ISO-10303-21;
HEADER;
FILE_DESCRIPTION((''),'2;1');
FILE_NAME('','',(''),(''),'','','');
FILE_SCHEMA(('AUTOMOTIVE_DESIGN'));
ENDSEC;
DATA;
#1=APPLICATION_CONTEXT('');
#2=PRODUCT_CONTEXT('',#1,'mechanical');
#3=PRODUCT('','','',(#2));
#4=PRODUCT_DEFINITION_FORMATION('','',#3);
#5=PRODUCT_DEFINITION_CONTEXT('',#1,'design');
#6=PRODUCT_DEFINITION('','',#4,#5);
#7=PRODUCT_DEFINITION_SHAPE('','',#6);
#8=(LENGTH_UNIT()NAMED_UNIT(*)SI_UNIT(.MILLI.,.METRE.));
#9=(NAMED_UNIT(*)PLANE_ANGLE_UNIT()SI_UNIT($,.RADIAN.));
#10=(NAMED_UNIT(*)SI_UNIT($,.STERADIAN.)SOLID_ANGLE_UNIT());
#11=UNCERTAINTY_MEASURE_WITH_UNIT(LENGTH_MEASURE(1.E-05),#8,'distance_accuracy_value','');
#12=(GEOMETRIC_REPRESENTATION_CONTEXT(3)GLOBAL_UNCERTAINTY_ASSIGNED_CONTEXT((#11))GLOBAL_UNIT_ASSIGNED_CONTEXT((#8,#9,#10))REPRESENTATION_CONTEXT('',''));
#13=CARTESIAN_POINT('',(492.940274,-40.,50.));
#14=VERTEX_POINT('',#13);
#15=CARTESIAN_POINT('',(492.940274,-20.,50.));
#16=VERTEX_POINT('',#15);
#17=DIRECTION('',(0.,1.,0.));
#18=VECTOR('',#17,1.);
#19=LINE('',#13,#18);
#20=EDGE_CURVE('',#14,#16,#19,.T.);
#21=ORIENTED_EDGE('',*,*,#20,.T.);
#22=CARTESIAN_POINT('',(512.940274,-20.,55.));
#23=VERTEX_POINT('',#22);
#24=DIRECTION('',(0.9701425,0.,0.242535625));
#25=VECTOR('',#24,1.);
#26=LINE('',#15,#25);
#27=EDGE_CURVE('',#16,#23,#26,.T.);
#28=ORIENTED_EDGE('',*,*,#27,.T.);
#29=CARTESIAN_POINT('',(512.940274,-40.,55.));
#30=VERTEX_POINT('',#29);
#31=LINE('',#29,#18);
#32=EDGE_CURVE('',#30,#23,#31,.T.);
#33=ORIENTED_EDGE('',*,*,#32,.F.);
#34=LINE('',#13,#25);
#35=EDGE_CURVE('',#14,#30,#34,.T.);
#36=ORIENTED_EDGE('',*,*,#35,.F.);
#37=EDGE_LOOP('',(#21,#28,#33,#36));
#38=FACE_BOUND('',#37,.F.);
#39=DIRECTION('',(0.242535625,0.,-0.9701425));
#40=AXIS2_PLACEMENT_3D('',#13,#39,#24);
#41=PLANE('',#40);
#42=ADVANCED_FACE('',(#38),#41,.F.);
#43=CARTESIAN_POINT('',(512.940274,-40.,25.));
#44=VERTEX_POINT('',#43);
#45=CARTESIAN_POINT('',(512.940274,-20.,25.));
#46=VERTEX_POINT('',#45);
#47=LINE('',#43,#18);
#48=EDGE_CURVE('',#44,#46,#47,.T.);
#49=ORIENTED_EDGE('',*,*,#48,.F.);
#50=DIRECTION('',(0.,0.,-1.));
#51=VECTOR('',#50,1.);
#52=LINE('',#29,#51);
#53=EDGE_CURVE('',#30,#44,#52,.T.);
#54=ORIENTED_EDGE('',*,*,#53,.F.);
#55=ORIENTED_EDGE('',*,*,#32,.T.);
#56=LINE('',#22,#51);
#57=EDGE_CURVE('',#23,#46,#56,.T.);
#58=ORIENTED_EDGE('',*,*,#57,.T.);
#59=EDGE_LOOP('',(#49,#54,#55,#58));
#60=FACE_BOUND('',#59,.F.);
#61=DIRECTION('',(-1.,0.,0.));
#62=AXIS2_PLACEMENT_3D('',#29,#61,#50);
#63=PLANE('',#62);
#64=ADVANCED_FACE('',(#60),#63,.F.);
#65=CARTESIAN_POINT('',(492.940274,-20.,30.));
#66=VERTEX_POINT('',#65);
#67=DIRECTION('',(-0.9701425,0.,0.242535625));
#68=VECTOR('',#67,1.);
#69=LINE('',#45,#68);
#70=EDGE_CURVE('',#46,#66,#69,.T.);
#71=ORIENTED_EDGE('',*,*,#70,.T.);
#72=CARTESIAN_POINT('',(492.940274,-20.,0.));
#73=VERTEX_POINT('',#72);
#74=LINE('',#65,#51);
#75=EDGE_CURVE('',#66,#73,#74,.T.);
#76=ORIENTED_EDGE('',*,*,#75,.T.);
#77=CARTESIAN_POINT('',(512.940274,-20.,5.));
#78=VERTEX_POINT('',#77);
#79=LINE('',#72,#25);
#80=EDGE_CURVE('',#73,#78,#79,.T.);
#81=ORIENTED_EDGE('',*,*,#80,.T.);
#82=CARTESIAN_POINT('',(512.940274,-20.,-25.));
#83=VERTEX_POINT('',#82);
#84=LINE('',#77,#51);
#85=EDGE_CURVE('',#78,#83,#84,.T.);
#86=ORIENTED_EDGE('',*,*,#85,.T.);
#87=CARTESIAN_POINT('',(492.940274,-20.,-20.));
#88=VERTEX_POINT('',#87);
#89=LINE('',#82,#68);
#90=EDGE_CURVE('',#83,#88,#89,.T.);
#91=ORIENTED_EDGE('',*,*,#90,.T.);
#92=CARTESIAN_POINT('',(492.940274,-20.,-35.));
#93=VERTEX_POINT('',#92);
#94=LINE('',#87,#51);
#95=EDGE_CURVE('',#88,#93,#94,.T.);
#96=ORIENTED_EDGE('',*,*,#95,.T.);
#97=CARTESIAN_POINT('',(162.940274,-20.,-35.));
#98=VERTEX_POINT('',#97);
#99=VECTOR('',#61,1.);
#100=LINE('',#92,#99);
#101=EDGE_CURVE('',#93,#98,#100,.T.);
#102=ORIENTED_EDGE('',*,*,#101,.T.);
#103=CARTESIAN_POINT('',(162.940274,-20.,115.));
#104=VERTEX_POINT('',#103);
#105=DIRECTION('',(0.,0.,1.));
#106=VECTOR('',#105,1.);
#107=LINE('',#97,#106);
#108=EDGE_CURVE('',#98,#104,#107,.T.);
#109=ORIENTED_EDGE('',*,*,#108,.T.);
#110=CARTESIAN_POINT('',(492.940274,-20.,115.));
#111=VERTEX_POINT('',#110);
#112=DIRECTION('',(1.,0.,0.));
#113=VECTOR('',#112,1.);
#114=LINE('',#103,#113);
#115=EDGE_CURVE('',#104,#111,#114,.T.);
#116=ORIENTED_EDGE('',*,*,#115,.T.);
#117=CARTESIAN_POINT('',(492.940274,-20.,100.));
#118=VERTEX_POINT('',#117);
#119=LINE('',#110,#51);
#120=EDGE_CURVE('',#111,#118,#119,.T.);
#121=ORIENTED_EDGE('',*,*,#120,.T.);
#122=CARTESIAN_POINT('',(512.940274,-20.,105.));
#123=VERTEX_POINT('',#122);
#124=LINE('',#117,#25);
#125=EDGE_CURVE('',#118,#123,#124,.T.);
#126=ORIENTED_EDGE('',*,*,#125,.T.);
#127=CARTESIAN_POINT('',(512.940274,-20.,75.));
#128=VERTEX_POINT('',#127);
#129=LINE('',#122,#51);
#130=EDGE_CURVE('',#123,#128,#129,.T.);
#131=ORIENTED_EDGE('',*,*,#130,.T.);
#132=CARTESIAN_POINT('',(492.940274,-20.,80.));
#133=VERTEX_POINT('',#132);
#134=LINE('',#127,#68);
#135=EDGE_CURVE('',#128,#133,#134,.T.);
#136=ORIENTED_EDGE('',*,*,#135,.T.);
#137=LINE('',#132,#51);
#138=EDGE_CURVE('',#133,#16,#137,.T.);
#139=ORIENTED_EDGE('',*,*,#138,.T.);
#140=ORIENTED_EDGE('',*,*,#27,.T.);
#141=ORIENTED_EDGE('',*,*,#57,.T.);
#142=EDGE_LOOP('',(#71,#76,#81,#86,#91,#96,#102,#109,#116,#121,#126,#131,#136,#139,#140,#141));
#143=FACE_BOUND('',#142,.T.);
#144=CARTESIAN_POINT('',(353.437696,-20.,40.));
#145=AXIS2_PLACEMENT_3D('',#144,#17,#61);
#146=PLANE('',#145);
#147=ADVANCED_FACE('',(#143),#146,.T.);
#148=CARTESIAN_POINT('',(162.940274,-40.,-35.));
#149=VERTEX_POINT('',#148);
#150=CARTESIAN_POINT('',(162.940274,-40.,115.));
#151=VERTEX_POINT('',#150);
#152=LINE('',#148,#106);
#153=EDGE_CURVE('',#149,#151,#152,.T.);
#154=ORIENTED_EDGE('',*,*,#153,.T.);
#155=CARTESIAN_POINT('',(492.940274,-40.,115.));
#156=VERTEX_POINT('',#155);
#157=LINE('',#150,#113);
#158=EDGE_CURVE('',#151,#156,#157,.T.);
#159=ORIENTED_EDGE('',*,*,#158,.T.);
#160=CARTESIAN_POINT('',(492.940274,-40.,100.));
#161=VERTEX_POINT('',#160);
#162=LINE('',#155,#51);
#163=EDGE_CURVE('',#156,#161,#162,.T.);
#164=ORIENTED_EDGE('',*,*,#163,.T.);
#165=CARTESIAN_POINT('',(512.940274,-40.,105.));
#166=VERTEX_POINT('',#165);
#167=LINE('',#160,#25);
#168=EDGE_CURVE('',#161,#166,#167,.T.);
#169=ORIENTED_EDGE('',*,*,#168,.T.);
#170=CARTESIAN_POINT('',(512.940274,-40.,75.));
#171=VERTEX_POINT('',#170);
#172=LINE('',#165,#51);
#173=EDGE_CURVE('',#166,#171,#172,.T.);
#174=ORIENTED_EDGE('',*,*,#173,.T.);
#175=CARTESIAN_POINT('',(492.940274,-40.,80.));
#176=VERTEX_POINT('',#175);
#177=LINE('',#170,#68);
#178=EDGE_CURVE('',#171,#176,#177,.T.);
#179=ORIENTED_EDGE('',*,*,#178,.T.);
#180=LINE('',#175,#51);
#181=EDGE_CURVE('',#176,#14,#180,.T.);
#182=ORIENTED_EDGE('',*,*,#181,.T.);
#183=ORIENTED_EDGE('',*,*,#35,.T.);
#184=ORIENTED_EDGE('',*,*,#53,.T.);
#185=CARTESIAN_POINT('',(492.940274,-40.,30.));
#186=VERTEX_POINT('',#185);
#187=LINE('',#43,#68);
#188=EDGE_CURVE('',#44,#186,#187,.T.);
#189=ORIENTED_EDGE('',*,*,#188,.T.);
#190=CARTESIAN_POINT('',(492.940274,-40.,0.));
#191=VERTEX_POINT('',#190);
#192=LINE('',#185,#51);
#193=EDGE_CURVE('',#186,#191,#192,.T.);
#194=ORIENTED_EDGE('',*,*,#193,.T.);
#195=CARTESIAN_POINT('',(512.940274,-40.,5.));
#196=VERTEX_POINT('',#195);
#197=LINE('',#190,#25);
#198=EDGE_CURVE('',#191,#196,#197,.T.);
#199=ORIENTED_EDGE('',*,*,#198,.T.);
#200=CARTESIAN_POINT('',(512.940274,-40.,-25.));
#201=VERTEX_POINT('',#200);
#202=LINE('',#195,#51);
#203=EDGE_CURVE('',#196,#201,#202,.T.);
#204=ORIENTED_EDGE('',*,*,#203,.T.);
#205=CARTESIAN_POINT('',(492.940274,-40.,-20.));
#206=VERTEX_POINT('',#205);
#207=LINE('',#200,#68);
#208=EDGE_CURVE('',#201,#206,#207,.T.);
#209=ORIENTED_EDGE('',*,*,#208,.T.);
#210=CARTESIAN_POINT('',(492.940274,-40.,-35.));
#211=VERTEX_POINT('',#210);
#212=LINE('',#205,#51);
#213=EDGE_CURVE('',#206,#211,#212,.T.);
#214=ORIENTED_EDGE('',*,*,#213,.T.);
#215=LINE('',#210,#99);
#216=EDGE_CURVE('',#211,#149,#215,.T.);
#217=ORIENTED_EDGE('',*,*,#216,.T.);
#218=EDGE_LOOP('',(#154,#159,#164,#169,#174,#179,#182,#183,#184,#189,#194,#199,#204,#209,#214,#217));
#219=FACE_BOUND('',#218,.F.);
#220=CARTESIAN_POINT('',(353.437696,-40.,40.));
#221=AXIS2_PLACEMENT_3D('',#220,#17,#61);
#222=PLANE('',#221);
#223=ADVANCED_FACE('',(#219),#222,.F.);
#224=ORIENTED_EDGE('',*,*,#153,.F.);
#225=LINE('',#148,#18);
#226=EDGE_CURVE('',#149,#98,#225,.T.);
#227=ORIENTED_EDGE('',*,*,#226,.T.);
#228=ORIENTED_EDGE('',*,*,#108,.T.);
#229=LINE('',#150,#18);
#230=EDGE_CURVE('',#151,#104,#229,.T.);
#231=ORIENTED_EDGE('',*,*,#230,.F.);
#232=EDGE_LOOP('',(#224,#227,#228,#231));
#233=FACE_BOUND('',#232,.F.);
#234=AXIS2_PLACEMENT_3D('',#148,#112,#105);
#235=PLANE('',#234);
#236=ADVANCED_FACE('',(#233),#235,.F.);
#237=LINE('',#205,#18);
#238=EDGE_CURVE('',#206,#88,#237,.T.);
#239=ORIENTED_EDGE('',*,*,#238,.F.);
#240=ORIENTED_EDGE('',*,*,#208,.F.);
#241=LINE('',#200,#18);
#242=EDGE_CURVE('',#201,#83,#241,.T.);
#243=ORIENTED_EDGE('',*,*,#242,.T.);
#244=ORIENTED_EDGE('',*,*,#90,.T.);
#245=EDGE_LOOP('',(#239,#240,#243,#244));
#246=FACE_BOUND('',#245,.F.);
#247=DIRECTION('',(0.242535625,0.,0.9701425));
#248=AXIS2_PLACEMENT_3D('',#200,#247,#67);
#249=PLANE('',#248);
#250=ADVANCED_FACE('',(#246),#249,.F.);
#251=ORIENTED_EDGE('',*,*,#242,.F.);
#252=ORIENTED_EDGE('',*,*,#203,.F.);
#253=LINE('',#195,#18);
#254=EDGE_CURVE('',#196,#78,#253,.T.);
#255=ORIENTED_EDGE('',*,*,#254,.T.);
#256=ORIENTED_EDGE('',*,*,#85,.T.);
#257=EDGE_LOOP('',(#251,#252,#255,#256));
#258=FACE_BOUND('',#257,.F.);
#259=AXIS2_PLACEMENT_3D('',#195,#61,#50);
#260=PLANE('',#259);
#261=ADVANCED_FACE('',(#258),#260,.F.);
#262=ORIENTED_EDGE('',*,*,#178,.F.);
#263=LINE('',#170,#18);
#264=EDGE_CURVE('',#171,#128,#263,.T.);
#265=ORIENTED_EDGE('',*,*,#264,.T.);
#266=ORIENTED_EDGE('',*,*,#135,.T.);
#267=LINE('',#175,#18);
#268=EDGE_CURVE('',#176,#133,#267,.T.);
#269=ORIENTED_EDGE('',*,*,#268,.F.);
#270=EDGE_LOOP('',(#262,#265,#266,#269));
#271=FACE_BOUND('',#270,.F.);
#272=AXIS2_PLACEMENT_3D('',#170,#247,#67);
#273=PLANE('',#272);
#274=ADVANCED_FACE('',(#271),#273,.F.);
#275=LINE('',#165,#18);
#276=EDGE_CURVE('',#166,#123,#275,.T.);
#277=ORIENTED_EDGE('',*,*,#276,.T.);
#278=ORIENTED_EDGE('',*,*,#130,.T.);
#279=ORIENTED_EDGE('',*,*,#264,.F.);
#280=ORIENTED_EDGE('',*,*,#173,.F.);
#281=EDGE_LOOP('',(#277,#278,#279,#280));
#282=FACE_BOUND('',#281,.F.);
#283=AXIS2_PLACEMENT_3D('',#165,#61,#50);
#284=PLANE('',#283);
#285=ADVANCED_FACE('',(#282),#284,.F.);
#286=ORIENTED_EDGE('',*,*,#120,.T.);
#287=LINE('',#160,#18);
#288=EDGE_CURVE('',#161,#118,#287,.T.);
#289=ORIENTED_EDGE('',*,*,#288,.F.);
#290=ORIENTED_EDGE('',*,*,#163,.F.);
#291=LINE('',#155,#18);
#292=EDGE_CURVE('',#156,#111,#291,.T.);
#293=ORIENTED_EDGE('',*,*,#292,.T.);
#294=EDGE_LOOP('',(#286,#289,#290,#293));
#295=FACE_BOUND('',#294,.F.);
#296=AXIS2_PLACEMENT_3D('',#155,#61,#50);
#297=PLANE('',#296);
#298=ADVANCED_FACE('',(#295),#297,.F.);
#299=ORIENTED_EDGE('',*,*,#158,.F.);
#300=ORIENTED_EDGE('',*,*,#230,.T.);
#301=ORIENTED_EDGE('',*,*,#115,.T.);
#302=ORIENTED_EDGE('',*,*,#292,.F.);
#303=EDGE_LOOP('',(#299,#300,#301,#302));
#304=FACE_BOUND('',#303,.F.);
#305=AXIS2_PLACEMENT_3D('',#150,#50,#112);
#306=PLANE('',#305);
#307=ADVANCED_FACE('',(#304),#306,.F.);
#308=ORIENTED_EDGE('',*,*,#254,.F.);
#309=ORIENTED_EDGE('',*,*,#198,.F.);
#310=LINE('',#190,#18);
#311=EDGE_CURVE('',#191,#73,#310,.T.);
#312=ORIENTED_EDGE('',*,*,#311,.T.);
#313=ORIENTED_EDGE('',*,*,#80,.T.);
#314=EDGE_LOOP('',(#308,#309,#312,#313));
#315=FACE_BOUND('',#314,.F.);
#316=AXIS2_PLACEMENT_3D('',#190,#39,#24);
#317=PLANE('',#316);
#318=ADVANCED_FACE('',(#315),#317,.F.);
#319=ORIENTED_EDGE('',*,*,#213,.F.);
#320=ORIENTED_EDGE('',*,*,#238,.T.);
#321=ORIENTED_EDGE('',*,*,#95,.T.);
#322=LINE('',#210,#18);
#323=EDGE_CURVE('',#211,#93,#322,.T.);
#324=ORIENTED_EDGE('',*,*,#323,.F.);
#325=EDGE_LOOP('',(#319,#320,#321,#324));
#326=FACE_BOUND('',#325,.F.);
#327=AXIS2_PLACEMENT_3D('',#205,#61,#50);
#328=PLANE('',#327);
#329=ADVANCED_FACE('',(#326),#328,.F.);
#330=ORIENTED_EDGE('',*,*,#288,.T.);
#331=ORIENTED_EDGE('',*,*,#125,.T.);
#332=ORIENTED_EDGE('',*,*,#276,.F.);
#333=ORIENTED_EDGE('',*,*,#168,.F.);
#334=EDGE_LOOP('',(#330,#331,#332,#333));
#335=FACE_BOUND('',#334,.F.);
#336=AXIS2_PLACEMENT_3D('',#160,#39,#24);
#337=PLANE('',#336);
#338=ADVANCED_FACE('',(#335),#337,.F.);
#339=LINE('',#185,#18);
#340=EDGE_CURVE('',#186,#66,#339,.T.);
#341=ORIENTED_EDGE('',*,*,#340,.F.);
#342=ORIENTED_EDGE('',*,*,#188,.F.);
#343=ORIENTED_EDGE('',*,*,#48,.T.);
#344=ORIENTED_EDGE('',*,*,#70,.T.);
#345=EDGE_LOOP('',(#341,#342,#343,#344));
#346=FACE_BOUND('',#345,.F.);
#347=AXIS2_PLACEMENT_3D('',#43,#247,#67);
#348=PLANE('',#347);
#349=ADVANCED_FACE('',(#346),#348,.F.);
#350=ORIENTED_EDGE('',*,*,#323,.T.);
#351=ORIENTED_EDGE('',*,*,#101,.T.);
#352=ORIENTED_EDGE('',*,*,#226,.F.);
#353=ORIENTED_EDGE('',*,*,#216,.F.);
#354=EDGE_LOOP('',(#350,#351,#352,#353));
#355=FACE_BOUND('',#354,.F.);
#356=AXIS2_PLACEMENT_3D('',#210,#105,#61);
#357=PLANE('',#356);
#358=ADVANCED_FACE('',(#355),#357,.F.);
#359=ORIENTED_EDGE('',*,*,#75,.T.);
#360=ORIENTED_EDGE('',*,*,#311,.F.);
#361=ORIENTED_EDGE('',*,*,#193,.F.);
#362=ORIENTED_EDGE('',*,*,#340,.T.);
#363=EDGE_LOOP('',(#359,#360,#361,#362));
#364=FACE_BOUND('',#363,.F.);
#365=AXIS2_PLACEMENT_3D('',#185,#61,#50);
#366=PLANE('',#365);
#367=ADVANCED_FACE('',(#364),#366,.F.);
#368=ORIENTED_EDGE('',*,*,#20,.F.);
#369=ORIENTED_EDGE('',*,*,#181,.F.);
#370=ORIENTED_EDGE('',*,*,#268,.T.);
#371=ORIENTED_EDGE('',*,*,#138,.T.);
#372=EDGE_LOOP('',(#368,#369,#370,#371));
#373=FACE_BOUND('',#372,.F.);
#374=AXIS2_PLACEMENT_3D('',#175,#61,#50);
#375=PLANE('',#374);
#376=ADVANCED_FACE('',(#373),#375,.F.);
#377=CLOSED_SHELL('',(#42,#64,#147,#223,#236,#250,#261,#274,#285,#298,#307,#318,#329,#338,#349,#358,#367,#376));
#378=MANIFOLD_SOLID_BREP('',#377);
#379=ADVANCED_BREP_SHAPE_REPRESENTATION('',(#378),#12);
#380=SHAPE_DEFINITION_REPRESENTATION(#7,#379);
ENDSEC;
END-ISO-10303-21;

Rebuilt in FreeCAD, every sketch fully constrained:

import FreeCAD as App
import Part
import Sketcher
Q = App.Units.Quantity


def add_polygon(sketch, points):
    """Adds a closed chain of lines whose ends are joined by coincident constraints."""
    first, n = sketch.GeometryCount, len(points)
    for a, b in zip(points, points[1:] + points[:1]):
        sketch.addGeometry(Part.LineSegment(App.Vector(*a, 0), App.Vector(*b, 0)), False)
    for i in range(n):
        sketch.addConstraint(Sketcher.Constraint("Coincident", first + i, 2, first + (i + 1) % n, 1))

doc = App.newDocument("Part")
body = doc.addObject("PartDesign::Body", "Body")

sketch1 = body.newObject("Sketcher::SketchObject", "Sketch")
sketch1.AttachmentSupport = (doc.getObject("XZ_Plane"), [""])
sketch1.MapMode = "FlatFace"
add_polygon(sketch1, [(163, 115), (-167, 115), (-167, 100), (-187, 105), (-187, 75), (-167, 80), (-167, 50), (-187, 55), (-187, 25), (-167, 30), (-167, 0), (-187, 5), (-187, -25), (-167, -20), (-167, -35), (163, -35)])
sketch1.addConstraint([
    Sketcher.Constraint("Horizontal", 0),
    Sketcher.Constraint("Vertical", 1),
    Sketcher.Constraint("Vertical", 3),
    Sketcher.Constraint("Vertical", 5),
    Sketcher.Constraint("Vertical", 7),
    Sketcher.Constraint("Vertical", 9),
    Sketcher.Constraint("Vertical", 11),
    Sketcher.Constraint("Vertical", 13),
    Sketcher.Constraint("Horizontal", 14),
    Sketcher.Constraint("Vertical", 15),
    Sketcher.Constraint("Symmetric", 7, 2, 11, 2, -1),
    Sketcher.Constraint("PointOnObject", 9, 2, -1),
    Sketcher.Constraint("Parallel", 2, 6),
    Sketcher.Constraint("Parallel", 4, 8),
    Sketcher.Constraint("Parallel", 6, 10),
    Sketcher.Constraint("Parallel", 8, 12),
    Sketcher.Constraint("Vertical", 1, 2, 4, 2),
    Sketcher.Constraint("Vertical", 3, 2, 6, 2),
    Sketcher.Constraint("Vertical", 5, 2, 8, 2),
    Sketcher.Constraint("Vertical", 9, 2, 12, 2),
    Sketcher.Constraint("Equal", 3, 5),
    Sketcher.Constraint("Equal", 5, 7),
    Sketcher.Constraint("Equal", 7, 9),
    Sketcher.Constraint("Equal", 9, 11),
    Sketcher.Constraint("Equal", 1, 13),
    Sketcher.Constraint("DistanceX", 0, 2, 0, 1, Q("330 mm")),
    Sketcher.Constraint("DistanceY", 1, 2, 1, 1, Q("15 mm")),
    Sketcher.Constraint("DistanceY", 3, 2, 3, 1, Q("30 mm")),
    Sketcher.Constraint("DistanceY", 15, 1, 15, 2, Q("150 mm")),
    Sketcher.Constraint("DistanceX", 2, 2, 1, 2, Q("20 mm")),
    Sketcher.Constraint("DistanceX", 0, 2, -1, 1, Q("167.059726 mm")),
])
pad1 = body.newObject("PartDesign::Pad", "Pad")
pad1.Profile = sketch1
pad1.Length = 20
body2 = doc.addObject("PartDesign::Body", "Body001")
doc.recompute()

body.Placement = App.Placement(App.Vector(325.880548, -40, 0), App.Rotation(App.Vector(0, 0, -1), 180))
boolean = body2.newObject("PartDesign::Boolean", "Boolean")
boolean.Type = "Fuse"
boolean.addObjects([body])

doc.recompute()
